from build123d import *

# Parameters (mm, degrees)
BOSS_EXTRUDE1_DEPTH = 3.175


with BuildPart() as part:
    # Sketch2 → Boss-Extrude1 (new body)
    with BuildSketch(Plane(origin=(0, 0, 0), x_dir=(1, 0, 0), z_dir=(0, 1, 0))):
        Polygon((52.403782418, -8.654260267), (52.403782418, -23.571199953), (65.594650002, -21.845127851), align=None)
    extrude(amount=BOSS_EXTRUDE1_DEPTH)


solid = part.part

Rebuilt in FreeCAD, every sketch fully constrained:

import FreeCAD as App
import Part
import Sketcher

V = App.Vector
Q = App.Units.Quantity


def add_polygon(sketch, points):
    """Adds a closed chain of lines whose ends are joined by coincident constraints."""
    first, n = sketch.GeometryCount, len(points)
    for a, b in zip(points, points[1:] + points[:1]):
        sketch.addGeometry(Part.LineSegment(App.Vector(*a, 0), App.Vector(*b, 0)), False)
    for i in range(n):
        sketch.addConstraint(Sketcher.Constraint("Coincident", first + i, 2, first + (i + 1) % n, 1))

doc = App.newDocument("Part")
body = doc.addObject("PartDesign::Body", "Body")

sketch1 = body.newObject("Sketcher::SketchObject", "Sketch")
sketch1.AttachmentSupport = (doc.getObject("XZ_Plane"), [""])
sketch1.MapMode = "FlatFace"
add_polygon(sketch1, [(52, 9), (52, 24), (66, 22)])
sketch1.addConstraint(Sketcher.Constraint("Vertical", 0))
sketch1.addConstraint(Sketcher.Constraint("Angle", 2, Q("-135 deg")))
sketch1.addConstraint(Sketcher.Constraint("DistanceY", -1, 1, 0, 2, Q("0.928 in")))
sketch1.addConstraint(Sketcher.Constraint("DistanceY", 0, 1, 0, 2, Q("14.91694 mm")))
sketch1.addConstraint(Sketcher.Constraint("Distance", 1, Q("13.30332 mm")))
sketch1.addConstraint(Sketcher.Constraint("DistanceX", -1, 1, 1, 2, Q("65.59465 mm")))
pad1 = body.newObject("PartDesign::Pad", "Pad")
pad1.Profile = sketch1
pad1.Length = Q("0.125 in")
pad1.Reversed = True

doc.recompute()
